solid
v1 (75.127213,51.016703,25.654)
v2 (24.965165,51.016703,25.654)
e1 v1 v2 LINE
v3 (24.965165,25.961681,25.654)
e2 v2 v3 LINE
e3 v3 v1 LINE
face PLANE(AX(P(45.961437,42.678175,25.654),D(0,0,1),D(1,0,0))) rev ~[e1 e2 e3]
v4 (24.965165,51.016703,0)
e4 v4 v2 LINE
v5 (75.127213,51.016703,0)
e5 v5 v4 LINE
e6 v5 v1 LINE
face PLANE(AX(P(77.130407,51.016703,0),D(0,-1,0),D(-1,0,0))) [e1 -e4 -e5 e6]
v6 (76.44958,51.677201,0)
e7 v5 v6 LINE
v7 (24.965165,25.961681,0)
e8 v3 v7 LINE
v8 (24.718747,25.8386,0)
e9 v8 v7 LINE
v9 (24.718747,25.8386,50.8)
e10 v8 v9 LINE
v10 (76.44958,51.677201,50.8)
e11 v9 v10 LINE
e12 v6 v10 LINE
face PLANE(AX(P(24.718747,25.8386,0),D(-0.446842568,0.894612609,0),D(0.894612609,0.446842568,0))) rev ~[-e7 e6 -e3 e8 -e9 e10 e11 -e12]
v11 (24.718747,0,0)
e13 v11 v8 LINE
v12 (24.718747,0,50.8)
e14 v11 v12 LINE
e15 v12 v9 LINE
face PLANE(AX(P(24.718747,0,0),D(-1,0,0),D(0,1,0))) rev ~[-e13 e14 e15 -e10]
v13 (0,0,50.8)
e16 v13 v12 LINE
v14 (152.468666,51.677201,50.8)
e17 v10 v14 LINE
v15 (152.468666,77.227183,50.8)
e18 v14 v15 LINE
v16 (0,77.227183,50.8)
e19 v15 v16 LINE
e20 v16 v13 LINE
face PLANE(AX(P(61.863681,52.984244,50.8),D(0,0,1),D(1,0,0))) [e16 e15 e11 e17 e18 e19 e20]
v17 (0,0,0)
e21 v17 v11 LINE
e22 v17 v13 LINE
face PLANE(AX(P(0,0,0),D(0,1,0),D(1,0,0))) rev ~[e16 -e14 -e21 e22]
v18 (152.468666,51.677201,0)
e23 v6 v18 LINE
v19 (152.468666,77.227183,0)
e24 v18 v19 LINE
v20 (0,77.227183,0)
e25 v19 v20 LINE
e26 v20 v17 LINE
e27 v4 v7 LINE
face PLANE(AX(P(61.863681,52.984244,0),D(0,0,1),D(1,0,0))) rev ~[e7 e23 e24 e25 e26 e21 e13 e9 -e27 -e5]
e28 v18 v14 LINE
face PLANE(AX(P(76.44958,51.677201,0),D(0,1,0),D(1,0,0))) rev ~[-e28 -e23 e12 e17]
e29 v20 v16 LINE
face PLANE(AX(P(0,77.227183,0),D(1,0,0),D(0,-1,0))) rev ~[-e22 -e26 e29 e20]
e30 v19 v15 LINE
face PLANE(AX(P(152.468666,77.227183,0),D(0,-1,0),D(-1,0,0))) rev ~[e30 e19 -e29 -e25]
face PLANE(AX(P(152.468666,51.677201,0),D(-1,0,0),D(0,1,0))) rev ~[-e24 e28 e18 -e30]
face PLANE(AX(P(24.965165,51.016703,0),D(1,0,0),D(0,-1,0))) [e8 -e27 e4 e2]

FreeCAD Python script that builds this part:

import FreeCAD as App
import Part
import Sketcher

V = App.Vector
Q = App.Units.Quantity

doc = App.newDocument("Part")
body = doc.addObject("PartDesign::Body", "Body")

sketch1 = body.newObject("Sketcher::SketchObject", "Sketch")
sketch1.AttachmentSupport = (doc.getObject("XY_Plane"), [""])
sketch1.MapMode = "FlatFace"
sketch1.addGeometry([
    Part.LineSegment(V(0, 77, 0), V(0, 0, 0)),
    Part.LineSegment(V(0, 0, 0), V(25, 0, 0)),
    Part.LineSegment(V(25, 0, 0), V(25, 26, 0)),
    Part.LineSegment(V(25, 26, 0), V(76, 52, 0)),
    Part.LineSegment(V(76, 52, 0), V(152, 52, 0)),
    Part.LineSegment(V(152, 52, 0), V(152, 77, 0)),
    Part.LineSegment(V(152, 77, 0), V(0, 77, 0)),
], False)
sketch1.addConstraint([
    Sketcher.Constraint("Coincident", 0, 2, 1, 1),
    Sketcher.Constraint("Coincident", 1, 2, 2, 1),
    Sketcher.Constraint("Coincident", 2, 2, 3, 1),
    Sketcher.Constraint("Coincident", 3, 2, 4, 1),
    Sketcher.Constraint("Coincident", 4, 2, 5, 1),
    Sketcher.Constraint("Coincident", 5, 2, 6, 1),
    Sketcher.Constraint("Coincident", 6, 2, 0, 1),
    Sketcher.Constraint("Vertical", 0),
    Sketcher.Constraint("Horizontal", 1),
    Sketcher.Constraint("Vertical", 2),
    Sketcher.Constraint("Horizontal", 4),
    Sketcher.Constraint("Vertical", 5),
    Sketcher.Constraint("Horizontal", 6),
    Sketcher.Constraint("Coincident", 0, 2, -1, 1),
    Sketcher.Constraint("DistanceY", 2, 1, 2, 2, 25.8386),
    Sketcher.Constraint("DistanceY", 5, 1, 5, 2, 25.549982),
    Sketcher.Constraint("DistanceY", -1, 1, 3, 2, 51.677201),
    Sketcher.Constraint("DistanceX", 1, 1, 1, 2, 24.718747),
    Sketcher.Constraint("DistanceX", 4, 1, 4, 2, 76.019086),
    Sketcher.Constraint("DistanceX", 6, 2, 6, 1, 152.468666),
])
pad1 = body.newObject("PartDesign::Pad", "Pad")
pad1.Profile = sketch1
pad1.Length = Q("2 in")

sketch2 = body.newObject("Sketcher::SketchObject", "Sketch001")
sketch2.AttachmentSupport = (doc.getObject("XY_Plane"), [""])
sketch2.MapMode = "FlatFace"
sketch2.addGeometry([
    Part.LineSegment(V(25, 51, 0), V(25, 24, 0)),
    Part.LineSegment(V(25, 24, 0), V(77, 51, 0)),
    Part.LineSegment(V(77, 51, 0), V(25, 51, 0)),
], False)
sketch2.addConstraint([
    Sketcher.Constraint("Coincident", 0, 2, 1, 1),
    Sketcher.Constraint("Coincident", 1, 2, 2, 1),
    Sketcher.Constraint("Coincident", 2, 2, 0, 1),
    Sketcher.Constraint("Vertical", 0),
    Sketcher.Constraint("Horizontal", 2),
    Sketcher.Constraint("Distance", 1, 58.669598),
    Sketcher.Constraint("DistanceX", 2, 2, 2, 1, 52.165242),
    Sketcher.Constraint("DistanceY", -1, 1, 0, 2, 24.166949),
    Sketcher.Constraint("DistanceX", -1, 1, 0, 2, 24.965165),
])
pocket1 = body.newObject("PartDesign::Pocket", "Pocket")
pocket1.Profile = sketch2
pocket1.Length = Q("1.01 in")
pocket1.Reversed = True

doc.recompute()
